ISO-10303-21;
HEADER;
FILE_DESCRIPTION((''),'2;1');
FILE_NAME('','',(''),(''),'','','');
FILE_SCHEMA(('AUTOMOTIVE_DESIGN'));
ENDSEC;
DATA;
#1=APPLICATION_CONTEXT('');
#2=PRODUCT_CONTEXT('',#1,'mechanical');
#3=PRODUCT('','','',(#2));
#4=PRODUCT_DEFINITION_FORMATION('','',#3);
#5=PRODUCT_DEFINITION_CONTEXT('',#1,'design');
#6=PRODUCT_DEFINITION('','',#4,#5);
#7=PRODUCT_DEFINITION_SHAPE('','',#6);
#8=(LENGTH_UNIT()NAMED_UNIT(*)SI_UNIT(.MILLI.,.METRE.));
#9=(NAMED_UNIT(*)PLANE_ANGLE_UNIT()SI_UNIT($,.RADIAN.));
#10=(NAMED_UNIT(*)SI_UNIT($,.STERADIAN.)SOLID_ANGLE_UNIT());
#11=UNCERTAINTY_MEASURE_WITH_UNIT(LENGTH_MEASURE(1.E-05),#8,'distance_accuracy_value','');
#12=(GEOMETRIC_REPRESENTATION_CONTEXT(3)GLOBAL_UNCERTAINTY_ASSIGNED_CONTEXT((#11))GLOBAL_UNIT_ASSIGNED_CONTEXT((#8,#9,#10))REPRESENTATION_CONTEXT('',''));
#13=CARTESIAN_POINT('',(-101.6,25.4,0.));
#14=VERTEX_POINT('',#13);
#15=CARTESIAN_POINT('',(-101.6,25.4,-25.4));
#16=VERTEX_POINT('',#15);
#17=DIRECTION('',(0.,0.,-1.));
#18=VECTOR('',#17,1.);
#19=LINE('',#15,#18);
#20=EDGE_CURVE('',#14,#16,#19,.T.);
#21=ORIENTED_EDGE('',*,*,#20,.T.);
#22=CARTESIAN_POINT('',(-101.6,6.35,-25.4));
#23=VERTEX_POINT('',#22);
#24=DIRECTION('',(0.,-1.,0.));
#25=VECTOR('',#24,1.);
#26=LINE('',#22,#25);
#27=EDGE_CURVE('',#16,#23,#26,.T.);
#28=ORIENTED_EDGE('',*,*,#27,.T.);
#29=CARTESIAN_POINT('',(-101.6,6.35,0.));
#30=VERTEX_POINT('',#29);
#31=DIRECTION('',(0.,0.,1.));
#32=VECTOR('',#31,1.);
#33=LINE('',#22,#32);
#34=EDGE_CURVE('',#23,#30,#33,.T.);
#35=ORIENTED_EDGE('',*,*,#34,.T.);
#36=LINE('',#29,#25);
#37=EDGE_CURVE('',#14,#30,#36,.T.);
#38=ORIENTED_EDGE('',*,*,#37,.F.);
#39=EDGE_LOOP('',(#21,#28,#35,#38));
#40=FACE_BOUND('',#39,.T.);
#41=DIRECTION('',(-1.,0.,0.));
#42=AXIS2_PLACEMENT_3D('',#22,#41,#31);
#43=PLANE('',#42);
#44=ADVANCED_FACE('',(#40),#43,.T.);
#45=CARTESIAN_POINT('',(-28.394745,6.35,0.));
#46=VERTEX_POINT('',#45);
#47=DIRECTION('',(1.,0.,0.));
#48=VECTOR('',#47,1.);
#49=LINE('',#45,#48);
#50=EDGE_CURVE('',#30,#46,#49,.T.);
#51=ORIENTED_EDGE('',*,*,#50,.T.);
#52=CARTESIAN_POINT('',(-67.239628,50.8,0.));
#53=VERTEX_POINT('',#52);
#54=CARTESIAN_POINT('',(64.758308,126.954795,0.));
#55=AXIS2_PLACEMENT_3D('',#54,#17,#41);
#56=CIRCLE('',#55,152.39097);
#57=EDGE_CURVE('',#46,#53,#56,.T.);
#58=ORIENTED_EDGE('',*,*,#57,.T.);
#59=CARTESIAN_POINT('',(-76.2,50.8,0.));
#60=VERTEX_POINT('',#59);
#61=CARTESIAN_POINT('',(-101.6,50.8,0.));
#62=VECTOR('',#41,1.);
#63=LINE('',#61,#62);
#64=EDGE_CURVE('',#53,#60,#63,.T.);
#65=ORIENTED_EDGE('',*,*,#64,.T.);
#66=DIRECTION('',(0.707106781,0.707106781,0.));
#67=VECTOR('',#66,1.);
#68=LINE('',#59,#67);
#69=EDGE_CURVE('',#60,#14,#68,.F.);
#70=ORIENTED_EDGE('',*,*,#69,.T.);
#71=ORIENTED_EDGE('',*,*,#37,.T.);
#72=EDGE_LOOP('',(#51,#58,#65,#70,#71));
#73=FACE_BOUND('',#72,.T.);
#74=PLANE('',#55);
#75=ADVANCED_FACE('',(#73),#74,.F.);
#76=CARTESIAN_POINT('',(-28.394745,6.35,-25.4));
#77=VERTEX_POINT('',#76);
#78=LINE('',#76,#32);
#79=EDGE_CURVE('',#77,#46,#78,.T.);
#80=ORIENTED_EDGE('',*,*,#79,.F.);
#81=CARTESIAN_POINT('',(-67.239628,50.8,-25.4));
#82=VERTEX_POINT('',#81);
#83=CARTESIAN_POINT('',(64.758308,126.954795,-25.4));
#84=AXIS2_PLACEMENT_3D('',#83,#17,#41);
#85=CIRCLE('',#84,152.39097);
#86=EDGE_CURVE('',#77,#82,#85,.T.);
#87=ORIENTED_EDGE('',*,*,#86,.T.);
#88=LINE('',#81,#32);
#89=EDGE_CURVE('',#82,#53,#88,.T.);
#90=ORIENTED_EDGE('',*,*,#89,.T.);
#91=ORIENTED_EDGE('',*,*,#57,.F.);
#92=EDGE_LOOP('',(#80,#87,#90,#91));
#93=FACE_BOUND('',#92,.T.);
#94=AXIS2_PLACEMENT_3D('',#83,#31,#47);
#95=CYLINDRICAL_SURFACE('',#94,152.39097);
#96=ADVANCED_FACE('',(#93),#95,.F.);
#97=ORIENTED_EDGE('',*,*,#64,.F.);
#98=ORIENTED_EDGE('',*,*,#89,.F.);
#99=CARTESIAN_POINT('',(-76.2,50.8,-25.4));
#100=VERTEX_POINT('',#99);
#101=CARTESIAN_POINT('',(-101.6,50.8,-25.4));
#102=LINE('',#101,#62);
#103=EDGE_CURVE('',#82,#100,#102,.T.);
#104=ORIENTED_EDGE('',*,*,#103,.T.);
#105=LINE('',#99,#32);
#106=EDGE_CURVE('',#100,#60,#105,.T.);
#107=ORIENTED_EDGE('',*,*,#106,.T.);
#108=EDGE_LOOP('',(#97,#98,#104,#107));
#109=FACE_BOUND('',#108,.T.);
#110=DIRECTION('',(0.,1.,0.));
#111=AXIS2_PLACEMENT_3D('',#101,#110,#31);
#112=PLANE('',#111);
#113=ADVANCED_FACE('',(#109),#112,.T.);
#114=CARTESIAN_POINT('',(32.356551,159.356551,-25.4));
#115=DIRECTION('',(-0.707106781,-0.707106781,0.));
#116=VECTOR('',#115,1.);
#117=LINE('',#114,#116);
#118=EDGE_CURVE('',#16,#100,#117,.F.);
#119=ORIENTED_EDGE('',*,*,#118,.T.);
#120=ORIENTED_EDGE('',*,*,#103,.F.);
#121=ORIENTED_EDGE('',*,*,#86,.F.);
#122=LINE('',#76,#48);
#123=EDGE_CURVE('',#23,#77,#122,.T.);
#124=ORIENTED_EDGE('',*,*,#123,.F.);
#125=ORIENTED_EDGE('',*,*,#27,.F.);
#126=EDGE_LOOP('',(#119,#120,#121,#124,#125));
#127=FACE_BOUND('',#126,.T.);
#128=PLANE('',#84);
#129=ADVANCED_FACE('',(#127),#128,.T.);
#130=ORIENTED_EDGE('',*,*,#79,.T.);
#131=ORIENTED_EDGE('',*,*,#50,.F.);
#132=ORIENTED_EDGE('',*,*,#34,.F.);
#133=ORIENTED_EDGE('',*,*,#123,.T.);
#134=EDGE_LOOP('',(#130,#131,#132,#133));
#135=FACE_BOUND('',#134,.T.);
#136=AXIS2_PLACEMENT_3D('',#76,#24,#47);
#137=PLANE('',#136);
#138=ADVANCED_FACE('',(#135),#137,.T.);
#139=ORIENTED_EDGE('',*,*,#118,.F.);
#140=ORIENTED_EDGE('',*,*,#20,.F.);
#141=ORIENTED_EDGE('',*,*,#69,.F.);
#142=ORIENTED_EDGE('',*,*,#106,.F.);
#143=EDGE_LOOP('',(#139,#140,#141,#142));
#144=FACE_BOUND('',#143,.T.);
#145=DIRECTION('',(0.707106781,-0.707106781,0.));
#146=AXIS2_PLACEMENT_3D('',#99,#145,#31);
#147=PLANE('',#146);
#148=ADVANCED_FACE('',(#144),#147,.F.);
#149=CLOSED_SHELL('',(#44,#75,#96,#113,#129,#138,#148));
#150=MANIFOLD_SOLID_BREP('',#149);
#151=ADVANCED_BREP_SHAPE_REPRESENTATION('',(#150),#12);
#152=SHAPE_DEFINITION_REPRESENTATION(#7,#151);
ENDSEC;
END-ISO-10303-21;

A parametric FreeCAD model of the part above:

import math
import FreeCAD as App
import Part
import Sketcher
Q = App.Units.Quantity


def edges_at(feature, points):
    """Names of the edges that pass closest to the given points."""
    edges = feature.Shape.Edges
    near = lambda p: min(range(len(edges)), key=lambda i: edges[i].distToShape(Part.Vertex(*p))[0])
    return sorted({f"Edge{near(p) + 1}" for p in points})

doc = App.newDocument("Part")
body = doc.addObject("PartDesign::Body", "Body")

# Sketch on XY plane
sketch1 = body.newObject("Sketcher::SketchObject", "Sketch")
sketch1.AttachmentSupport = (doc.getObject("XY_Plane"), [""])
sketch1.MapMode = "FlatFace"
sketch1.addGeometry([
    Part.LineSegment(App.Vector(-102, 6, 0), App.Vector(-28, 6, 0)),
    Part.ArcOfCircle(Part.Circle(App.Vector(65, 127, 0), App.Vector(0, 0, 1), 152), math.radians(-150), math.radians(-128)),
    Part.LineSegment(App.Vector(-67, 51, 0), App.Vector(-102, 51, 0)),
    Part.LineSegment(App.Vector(-102, 51, 0), App.Vector(-102, 6, 0)),
], False)
sketch1.addConstraint([
    Sketcher.Constraint("Coincident", 0, 2, 1, 2),
    Sketcher.Constraint("Coincident", 1, 1, 2, 1),
    Sketcher.Constraint("Coincident", 2, 2, 3, 1),
    Sketcher.Constraint("Coincident", 3, 2, 0, 1),
    Sketcher.Constraint("Horizontal", 0),
    Sketcher.Constraint("Horizontal", 2),
    Sketcher.Constraint("Vertical", 3),
    Sketcher.Constraint("DistanceY", -1, 1, 1, 1, Q("2 in")),
    Sketcher.Constraint("DistanceX", 2, 2, -1, 1, Q("4 in")),
    Sketcher.Constraint("DistanceY", 3, 2, 3, 1, Q("1.75 in")),
    Sketcher.Constraint("Radius", 1, Q("152.39097 mm")),
    Sketcher.Constraint("DistanceX", 0, 1, 0, 2, Q("73.205255 mm")),
    Sketcher.Constraint("DistanceX", 2, 2, 2, 1, Q("34.360372 mm")),
])
pad1 = body.newObject("PartDesign::Pad", "Pad")
pad1.Profile = sketch1
pad1.Length = Q("1 in")
pad1.Reversed = True
doc.recompute()

chamfer = body.newObject("PartDesign::Chamfer", "Chamfer")
chamfer.Base = (pad1, edges_at(pad1, [(-101.6, 50.8, -12.7)]))
chamfer.Size = Q("1 in")

doc.recompute()
